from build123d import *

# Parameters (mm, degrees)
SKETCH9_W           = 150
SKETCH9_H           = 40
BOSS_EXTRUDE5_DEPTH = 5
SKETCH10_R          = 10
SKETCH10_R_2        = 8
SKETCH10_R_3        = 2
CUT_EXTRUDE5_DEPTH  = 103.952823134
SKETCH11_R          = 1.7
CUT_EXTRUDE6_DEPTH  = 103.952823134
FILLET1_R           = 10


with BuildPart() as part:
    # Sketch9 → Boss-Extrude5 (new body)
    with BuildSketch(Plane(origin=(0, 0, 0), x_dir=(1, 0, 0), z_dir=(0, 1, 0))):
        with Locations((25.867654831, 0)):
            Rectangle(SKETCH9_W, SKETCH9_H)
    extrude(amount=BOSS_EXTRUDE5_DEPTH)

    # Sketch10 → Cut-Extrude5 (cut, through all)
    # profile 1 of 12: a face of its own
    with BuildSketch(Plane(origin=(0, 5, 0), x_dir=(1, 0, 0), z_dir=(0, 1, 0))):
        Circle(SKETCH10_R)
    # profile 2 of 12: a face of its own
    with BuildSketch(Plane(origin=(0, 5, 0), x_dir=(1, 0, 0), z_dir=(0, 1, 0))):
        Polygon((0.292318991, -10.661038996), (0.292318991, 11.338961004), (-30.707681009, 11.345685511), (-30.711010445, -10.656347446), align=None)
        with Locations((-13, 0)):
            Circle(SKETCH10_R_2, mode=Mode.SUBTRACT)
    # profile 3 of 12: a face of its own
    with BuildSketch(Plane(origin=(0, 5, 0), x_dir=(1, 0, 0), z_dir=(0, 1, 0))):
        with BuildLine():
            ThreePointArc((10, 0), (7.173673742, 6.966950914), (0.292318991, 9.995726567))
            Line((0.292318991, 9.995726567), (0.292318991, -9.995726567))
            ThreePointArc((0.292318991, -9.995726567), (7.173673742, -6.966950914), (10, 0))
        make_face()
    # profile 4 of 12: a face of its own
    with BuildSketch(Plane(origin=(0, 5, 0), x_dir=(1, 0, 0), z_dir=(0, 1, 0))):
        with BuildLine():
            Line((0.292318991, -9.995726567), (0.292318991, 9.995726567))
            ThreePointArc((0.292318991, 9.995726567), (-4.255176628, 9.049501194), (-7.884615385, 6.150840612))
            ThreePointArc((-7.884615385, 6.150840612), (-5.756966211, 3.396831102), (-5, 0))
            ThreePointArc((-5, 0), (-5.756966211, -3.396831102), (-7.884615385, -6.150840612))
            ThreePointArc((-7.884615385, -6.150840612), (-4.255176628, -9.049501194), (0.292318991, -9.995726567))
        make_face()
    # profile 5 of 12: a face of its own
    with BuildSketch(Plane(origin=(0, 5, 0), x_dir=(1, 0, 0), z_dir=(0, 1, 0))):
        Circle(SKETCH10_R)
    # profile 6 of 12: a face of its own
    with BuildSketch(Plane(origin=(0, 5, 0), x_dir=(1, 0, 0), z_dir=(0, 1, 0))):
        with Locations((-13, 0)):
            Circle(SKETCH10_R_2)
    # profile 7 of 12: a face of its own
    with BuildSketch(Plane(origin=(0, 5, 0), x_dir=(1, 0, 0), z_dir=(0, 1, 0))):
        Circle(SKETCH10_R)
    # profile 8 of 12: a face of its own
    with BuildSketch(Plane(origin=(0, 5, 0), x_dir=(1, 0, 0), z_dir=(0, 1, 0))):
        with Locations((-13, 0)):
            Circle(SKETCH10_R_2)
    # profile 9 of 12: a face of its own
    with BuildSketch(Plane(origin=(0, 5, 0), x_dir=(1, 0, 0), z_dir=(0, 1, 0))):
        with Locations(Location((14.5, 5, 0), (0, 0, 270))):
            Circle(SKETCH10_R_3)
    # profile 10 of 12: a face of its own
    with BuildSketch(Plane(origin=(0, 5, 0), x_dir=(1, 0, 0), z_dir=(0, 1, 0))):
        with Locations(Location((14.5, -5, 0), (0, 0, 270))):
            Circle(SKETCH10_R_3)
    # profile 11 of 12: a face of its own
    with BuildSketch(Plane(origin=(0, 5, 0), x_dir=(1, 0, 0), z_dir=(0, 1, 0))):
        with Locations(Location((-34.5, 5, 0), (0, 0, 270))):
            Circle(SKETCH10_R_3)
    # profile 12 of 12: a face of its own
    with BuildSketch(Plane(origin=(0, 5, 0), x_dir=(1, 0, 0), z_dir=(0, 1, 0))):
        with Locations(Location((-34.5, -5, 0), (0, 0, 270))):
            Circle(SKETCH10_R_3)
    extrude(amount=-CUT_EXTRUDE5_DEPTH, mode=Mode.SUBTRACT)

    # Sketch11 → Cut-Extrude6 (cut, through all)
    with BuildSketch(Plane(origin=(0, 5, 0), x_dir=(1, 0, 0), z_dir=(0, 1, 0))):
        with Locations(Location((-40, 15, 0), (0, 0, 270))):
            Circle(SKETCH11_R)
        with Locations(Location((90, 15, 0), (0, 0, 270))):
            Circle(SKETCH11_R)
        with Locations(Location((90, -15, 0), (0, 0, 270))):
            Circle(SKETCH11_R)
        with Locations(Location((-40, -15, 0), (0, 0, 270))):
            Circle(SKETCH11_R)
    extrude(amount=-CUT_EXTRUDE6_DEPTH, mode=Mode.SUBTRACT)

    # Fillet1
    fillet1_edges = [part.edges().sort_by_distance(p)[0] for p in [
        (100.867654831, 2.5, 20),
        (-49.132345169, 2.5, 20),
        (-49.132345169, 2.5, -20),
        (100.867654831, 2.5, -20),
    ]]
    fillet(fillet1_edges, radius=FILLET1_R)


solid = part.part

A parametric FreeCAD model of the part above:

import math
import FreeCAD as App
import Part
import Sketcher
Q = App.Units.Quantity


def edges_at(feature, points):
    """Names of the edges that pass closest to the given points."""
    edges = feature.Shape.Edges
    near = lambda p: min(range(len(edges)), key=lambda i: edges[i].distToShape(Part.Vertex(*p))[0])
    return sorted({f"Edge{near(p) + 1}" for p in points})

doc = App.newDocument("Part")
params = doc.addObject("Spreadsheet::Sheet", "Params")
for row, (alias, value) in enumerate([
    ("sketch1_width", "150 mm"),
    ("sketch1_height", "40 mm"),
    ("pad1_length", "5 mm"),
    ("sketch2_diameter", "4 mm"),
    ("sketch2_radius", "10 mm"),
    ("sketch2_length", "31.000001 mm"),
    ("pocket1_length", "103.952823 mm"),
    ("sketch3_diameter", "3.4 mm"),
    ("fillet_radius", "10 mm"),
], start=1):
    params.set(f"A{row}", alias)
    params.set(f"B{row}", "=" + value)
    params.setAlias(f"B{row}", alias)

body = doc.addObject("PartDesign::Body", "Body")

# Sketch on XZ plane
sketch1 = body.newObject("Sketcher::SketchObject", "Sketch")
sketch1.AttachmentSupport = (doc.getObject("XZ_Plane"), [""])
sketch1.MapMode = "FlatFace"
sketch1.addGeometry(Part.LineSegment(App.Vector(-49, -20, 0), App.Vector(-49, 20, 0)), False)
sketch1.addGeometry(Part.LineSegment(App.Vector(-49, 20, 0), App.Vector(101, 20, 0)), False)
sketch1.addGeometry(Part.LineSegment(App.Vector(101, 20, 0), App.Vector(101, -20, 0)), False)
sketch1.addGeometry(Part.LineSegment(App.Vector(101, -20, 0), App.Vector(-49, -20, 0)), False)
sketch1.addConstraint(Sketcher.Constraint("Coincident", 0, 2, 1, 1))
sketch1.addConstraint(Sketcher.Constraint("Coincident", 1, 2, 2, 1))
sketch1.addConstraint(Sketcher.Constraint("Coincident", 2, 2, 3, 1))
sketch1.addConstraint(Sketcher.Constraint("Coincident", 3, 2, 0, 1))
sketch1.addConstraint(Sketcher.Constraint("Vertical", 0))
sketch1.addConstraint(Sketcher.Constraint("Horizontal", 1))
sketch1.addConstraint(Sketcher.Constraint("Vertical", 2))
sketch1.addConstraint(Sketcher.Constraint("Horizontal", 3))
sketch1.addConstraint(Sketcher.Constraint("DistanceX", 1, 1, 1, 2, Q("150 mm")))
sketch1.addConstraint(Sketcher.Constraint("DistanceY", 0, 1, 0, 2, Q("40 mm")))
sketch1.addConstraint(Sketcher.Constraint("DistanceY", -1, 1, 0, 2, Q("20 mm")))
sketch1.addConstraint(Sketcher.Constraint("DistanceX", 0, 2, -1, 1, Q("49.132345 mm")))
sketch1.setExpression("Constraints[8]", "Params.sketch1_width")
sketch1.setExpression("Constraints[9]", "Params.sketch1_height")
pad1 = body.newObject("PartDesign::Pad", "Pad")
pad1.Profile = sketch1
pad1.setExpression("Length", "Params.pad1_length")
pad1.Reversed = True

# Sketch on XZ plane
sketch2 = body.newObject("Sketcher::SketchObject", "Sketch001")
sketch2.AttachmentSupport = (doc.getObject("XZ_Plane"), [""])
sketch2.MapMode = "FlatFace"
sketch2.AttachmentOffset = App.Placement(App.Vector(0, 0, -5), App.Rotation())
sketch2.addGeometry(Part.ArcOfCircle(Part.Circle(App.Vector(0, 0, 0), App.Vector(0, 0, 1), 10), math.radians(-88), math.radians(88)), False)
sketch2.addGeometry(Part.LineSegment(App.Vector(0.3, -10, 0), App.Vector(0.3, -11.3, 0)), False)
sketch2.addGeometry(Part.LineSegment(App.Vector(0.3, -11.3, 0), App.Vector(-30.7, -11.3, 0)), False)
sketch2.addGeometry(Part.LineSegment(App.Vector(-30.7, -11.3, 0), App.Vector(-30.7, 10.7, 0)), False)
sketch2.addGeometry(Part.LineSegment(App.Vector(-30.7, 10.7, 0), App.Vector(0.3, 10.7, 0)), False)
sketch2.addGeometry(Part.LineSegment(App.Vector(0.3, 10.7, 0), App.Vector(0.3, 10, 0)), False)
sketch2.addGeometry(Part.Circle(App.Vector(14.5, -5, 0), App.Vector(0, 0, 1), 2), False)
sketch2.addGeometry(Part.Circle(App.Vector(14.5, 5, 0), App.Vector(0, 0, 1), 2), False)
sketch2.addGeometry(Part.Circle(App.Vector(-34.5, -5, 0), App.Vector(0, 0, 1), 2), False)
sketch2.addGeometry(Part.Circle(App.Vector(-34.5, 5, 0), App.Vector(0, 0, 1), 2), False)
sketch2.addConstraint(Sketcher.Constraint("Coincident", 0, 1, 1, 1))
sketch2.addConstraint(Sketcher.Constraint("Coincident", 1, 2, 2, 1))
sketch2.addConstraint(Sketcher.Constraint("Coincident", 2, 2, 3, 1))
sketch2.addConstraint(Sketcher.Constraint("Coincident", 3, 2, 4, 1))
sketch2.addConstraint(Sketcher.Constraint("Coincident", 4, 2, 5, 1))
sketch2.addConstraint(Sketcher.Constraint("Coincident", 5, 2, 0, 2))
sketch2.addConstraint(Sketcher.Constraint("Vertical", 1))
sketch2.addConstraint(Sketcher.Constraint("Vertical", 5))
sketch2.addConstraint(Sketcher.Constraint("Coincident", 0, 3, -1, 1))
sketch2.addConstraint(Sketcher.Constraint("Equal", 6, 7))
sketch2.addConstraint(Sketcher.Constraint("Equal", 7, 8))
sketch2.addConstraint(Sketcher.Constraint("Equal", 8, 9))
sketch2.addConstraint(Sketcher.Constraint("Symmetric", 6, 3, 7, 3, -1))
sketch2.addConstraint(Sketcher.Constraint("Symmetric", 8, 3, 9, 3, -1))
sketch2.addConstraint(Sketcher.Constraint("Perpendicular", 3, 4))
sketch2.addConstraint(Sketcher.Constraint("Horizontal", 6, 3, 8, 3))
sketch2.addConstraint(Sketcher.Constraint("Vertical", 1, 2, 4, 2))
sketch2.addConstraint(Sketcher.Constraint("Diameter", 6, Q("4 mm")))
sketch2.addConstraint(Sketcher.Constraint("Radius", 0, Q("10 mm")))
sketch2.addConstraint(Sketcher.Constraint("Distance", 2, Q("31.000001 mm")))
sketch2.addConstraint(Sketcher.Constraint("DistanceY", 6, 3, -1, 1, Q("5 mm")))
sketch2.addConstraint(Sketcher.Constraint("DistanceX", 8, 3, 6, 3, Q("49 mm")))
sketch2.addConstraint(Sketcher.Constraint("DistanceY", 1, 2, 4, 2, Q("22 mm")))
sketch2.addConstraint(Sketcher.Constraint("DistanceX", -1, 1, 6, 3, Q("14.5 mm")))
sketch2.addConstraint(Sketcher.Constraint("Distance", 4, Q("31.00333 mm")))
sketch2.addConstraint(Sketcher.Constraint("DistanceY", 1, 2, 1, 1, Q("1.343234 mm")))
sketch2.addConstraint(Sketcher.Constraint("DistanceY", 5, 2, 5, 1, Q("0.665312 mm")))
sketch2.addConstraint(Sketcher.Constraint("DistanceY", 2, 2, 0, 1, Q("1.349959 mm")))
sketch2.setExpression("Constraints[17]", "Params.sketch2_diameter")
sketch2.setExpression("Constraints[18]", "Params.sketch2_radius")
sketch2.setExpression("Constraints[19]", "Params.sketch2_length")
pocket1 = body.newObject("PartDesign::Pocket", "Pocket")
pocket1.Profile = sketch2
pocket1.setExpression("Length", "Params.pocket1_length")
pocket1.Reversed = True

# Sketch on XZ plane
sketch3 = body.newObject("Sketcher::SketchObject", "Sketch002")
sketch3.AttachmentSupport = (doc.getObject("XZ_Plane"), [""])
sketch3.MapMode = "FlatFace"
sketch3.AttachmentOffset = App.Placement(App.Vector(0, 0, -5), App.Rotation())
sketch3.addGeometry(Part.Circle(App.Vector(-40, -15, 0), App.Vector(0, 0, 1), 1.7), False)
sketch3.addGeometry(Part.Circle(App.Vector(90, -15, 0), App.Vector(0, 0, 1), 1.7), False)
sketch3.addGeometry(Part.Circle(App.Vector(90, 15, 0), App.Vector(0, 0, 1), 1.7), False)
sketch3.addGeometry(Part.Circle(App.Vector(-40, 15, 0), App.Vector(0, 0, 1), 1.7), False)
sketch3.addConstraint(Sketcher.Constraint("Equal", 0, 1))
sketch3.addConstraint(Sketcher.Constraint("Equal", 1, 2))
sketch3.addConstraint(Sketcher.Constraint("Equal", 2, 3))
sketch3.addConstraint(Sketcher.Constraint("Symmetric", 1, 3, 2, 3, -1))
sketch3.addConstraint(Sketcher.Constraint("Symmetric", 0, 3, 3, 3, -1))
sketch3.addConstraint(Sketcher.Constraint("Horizontal", 0, 3, 1, 3))
sketch3.addConstraint(Sketcher.Constraint("Diameter", 0, Q("3.4 mm")))
sketch3.addConstraint(Sketcher.Constraint("DistanceX", 0, 3, -1, 1, Q("40 mm")))
sketch3.addConstraint(Sketcher.Constraint("DistanceY", 0, 3, -1, 1, Q("15 mm")))
sketch3.addConstraint(Sketcher.Constraint("DistanceX", -1, 1, 1, 3, Q("90 mm")))
sketch3.setExpression("Constraints[6]", "Params.sketch3_diameter")
pocket2 = body.newObject("PartDesign::Pocket", "Pocket001")
pocket2.Profile = sketch3
pocket2.Type = "ThroughAll"
pocket2.Reversed = True
doc.recompute()

fillet = body.newObject("PartDesign::Fillet", "Fillet")
fillet.Base = (pocket2, edges_at(pocket2, [
    (100.868, 2.5, 20),
    (-49.132, 2.5, 20),
    (-49.132, 2.5, -20),
    (100.868, 2.5, -20),
]))
fillet.setExpression("Radius", "Params.fillet_radius")

doc.recompute()
